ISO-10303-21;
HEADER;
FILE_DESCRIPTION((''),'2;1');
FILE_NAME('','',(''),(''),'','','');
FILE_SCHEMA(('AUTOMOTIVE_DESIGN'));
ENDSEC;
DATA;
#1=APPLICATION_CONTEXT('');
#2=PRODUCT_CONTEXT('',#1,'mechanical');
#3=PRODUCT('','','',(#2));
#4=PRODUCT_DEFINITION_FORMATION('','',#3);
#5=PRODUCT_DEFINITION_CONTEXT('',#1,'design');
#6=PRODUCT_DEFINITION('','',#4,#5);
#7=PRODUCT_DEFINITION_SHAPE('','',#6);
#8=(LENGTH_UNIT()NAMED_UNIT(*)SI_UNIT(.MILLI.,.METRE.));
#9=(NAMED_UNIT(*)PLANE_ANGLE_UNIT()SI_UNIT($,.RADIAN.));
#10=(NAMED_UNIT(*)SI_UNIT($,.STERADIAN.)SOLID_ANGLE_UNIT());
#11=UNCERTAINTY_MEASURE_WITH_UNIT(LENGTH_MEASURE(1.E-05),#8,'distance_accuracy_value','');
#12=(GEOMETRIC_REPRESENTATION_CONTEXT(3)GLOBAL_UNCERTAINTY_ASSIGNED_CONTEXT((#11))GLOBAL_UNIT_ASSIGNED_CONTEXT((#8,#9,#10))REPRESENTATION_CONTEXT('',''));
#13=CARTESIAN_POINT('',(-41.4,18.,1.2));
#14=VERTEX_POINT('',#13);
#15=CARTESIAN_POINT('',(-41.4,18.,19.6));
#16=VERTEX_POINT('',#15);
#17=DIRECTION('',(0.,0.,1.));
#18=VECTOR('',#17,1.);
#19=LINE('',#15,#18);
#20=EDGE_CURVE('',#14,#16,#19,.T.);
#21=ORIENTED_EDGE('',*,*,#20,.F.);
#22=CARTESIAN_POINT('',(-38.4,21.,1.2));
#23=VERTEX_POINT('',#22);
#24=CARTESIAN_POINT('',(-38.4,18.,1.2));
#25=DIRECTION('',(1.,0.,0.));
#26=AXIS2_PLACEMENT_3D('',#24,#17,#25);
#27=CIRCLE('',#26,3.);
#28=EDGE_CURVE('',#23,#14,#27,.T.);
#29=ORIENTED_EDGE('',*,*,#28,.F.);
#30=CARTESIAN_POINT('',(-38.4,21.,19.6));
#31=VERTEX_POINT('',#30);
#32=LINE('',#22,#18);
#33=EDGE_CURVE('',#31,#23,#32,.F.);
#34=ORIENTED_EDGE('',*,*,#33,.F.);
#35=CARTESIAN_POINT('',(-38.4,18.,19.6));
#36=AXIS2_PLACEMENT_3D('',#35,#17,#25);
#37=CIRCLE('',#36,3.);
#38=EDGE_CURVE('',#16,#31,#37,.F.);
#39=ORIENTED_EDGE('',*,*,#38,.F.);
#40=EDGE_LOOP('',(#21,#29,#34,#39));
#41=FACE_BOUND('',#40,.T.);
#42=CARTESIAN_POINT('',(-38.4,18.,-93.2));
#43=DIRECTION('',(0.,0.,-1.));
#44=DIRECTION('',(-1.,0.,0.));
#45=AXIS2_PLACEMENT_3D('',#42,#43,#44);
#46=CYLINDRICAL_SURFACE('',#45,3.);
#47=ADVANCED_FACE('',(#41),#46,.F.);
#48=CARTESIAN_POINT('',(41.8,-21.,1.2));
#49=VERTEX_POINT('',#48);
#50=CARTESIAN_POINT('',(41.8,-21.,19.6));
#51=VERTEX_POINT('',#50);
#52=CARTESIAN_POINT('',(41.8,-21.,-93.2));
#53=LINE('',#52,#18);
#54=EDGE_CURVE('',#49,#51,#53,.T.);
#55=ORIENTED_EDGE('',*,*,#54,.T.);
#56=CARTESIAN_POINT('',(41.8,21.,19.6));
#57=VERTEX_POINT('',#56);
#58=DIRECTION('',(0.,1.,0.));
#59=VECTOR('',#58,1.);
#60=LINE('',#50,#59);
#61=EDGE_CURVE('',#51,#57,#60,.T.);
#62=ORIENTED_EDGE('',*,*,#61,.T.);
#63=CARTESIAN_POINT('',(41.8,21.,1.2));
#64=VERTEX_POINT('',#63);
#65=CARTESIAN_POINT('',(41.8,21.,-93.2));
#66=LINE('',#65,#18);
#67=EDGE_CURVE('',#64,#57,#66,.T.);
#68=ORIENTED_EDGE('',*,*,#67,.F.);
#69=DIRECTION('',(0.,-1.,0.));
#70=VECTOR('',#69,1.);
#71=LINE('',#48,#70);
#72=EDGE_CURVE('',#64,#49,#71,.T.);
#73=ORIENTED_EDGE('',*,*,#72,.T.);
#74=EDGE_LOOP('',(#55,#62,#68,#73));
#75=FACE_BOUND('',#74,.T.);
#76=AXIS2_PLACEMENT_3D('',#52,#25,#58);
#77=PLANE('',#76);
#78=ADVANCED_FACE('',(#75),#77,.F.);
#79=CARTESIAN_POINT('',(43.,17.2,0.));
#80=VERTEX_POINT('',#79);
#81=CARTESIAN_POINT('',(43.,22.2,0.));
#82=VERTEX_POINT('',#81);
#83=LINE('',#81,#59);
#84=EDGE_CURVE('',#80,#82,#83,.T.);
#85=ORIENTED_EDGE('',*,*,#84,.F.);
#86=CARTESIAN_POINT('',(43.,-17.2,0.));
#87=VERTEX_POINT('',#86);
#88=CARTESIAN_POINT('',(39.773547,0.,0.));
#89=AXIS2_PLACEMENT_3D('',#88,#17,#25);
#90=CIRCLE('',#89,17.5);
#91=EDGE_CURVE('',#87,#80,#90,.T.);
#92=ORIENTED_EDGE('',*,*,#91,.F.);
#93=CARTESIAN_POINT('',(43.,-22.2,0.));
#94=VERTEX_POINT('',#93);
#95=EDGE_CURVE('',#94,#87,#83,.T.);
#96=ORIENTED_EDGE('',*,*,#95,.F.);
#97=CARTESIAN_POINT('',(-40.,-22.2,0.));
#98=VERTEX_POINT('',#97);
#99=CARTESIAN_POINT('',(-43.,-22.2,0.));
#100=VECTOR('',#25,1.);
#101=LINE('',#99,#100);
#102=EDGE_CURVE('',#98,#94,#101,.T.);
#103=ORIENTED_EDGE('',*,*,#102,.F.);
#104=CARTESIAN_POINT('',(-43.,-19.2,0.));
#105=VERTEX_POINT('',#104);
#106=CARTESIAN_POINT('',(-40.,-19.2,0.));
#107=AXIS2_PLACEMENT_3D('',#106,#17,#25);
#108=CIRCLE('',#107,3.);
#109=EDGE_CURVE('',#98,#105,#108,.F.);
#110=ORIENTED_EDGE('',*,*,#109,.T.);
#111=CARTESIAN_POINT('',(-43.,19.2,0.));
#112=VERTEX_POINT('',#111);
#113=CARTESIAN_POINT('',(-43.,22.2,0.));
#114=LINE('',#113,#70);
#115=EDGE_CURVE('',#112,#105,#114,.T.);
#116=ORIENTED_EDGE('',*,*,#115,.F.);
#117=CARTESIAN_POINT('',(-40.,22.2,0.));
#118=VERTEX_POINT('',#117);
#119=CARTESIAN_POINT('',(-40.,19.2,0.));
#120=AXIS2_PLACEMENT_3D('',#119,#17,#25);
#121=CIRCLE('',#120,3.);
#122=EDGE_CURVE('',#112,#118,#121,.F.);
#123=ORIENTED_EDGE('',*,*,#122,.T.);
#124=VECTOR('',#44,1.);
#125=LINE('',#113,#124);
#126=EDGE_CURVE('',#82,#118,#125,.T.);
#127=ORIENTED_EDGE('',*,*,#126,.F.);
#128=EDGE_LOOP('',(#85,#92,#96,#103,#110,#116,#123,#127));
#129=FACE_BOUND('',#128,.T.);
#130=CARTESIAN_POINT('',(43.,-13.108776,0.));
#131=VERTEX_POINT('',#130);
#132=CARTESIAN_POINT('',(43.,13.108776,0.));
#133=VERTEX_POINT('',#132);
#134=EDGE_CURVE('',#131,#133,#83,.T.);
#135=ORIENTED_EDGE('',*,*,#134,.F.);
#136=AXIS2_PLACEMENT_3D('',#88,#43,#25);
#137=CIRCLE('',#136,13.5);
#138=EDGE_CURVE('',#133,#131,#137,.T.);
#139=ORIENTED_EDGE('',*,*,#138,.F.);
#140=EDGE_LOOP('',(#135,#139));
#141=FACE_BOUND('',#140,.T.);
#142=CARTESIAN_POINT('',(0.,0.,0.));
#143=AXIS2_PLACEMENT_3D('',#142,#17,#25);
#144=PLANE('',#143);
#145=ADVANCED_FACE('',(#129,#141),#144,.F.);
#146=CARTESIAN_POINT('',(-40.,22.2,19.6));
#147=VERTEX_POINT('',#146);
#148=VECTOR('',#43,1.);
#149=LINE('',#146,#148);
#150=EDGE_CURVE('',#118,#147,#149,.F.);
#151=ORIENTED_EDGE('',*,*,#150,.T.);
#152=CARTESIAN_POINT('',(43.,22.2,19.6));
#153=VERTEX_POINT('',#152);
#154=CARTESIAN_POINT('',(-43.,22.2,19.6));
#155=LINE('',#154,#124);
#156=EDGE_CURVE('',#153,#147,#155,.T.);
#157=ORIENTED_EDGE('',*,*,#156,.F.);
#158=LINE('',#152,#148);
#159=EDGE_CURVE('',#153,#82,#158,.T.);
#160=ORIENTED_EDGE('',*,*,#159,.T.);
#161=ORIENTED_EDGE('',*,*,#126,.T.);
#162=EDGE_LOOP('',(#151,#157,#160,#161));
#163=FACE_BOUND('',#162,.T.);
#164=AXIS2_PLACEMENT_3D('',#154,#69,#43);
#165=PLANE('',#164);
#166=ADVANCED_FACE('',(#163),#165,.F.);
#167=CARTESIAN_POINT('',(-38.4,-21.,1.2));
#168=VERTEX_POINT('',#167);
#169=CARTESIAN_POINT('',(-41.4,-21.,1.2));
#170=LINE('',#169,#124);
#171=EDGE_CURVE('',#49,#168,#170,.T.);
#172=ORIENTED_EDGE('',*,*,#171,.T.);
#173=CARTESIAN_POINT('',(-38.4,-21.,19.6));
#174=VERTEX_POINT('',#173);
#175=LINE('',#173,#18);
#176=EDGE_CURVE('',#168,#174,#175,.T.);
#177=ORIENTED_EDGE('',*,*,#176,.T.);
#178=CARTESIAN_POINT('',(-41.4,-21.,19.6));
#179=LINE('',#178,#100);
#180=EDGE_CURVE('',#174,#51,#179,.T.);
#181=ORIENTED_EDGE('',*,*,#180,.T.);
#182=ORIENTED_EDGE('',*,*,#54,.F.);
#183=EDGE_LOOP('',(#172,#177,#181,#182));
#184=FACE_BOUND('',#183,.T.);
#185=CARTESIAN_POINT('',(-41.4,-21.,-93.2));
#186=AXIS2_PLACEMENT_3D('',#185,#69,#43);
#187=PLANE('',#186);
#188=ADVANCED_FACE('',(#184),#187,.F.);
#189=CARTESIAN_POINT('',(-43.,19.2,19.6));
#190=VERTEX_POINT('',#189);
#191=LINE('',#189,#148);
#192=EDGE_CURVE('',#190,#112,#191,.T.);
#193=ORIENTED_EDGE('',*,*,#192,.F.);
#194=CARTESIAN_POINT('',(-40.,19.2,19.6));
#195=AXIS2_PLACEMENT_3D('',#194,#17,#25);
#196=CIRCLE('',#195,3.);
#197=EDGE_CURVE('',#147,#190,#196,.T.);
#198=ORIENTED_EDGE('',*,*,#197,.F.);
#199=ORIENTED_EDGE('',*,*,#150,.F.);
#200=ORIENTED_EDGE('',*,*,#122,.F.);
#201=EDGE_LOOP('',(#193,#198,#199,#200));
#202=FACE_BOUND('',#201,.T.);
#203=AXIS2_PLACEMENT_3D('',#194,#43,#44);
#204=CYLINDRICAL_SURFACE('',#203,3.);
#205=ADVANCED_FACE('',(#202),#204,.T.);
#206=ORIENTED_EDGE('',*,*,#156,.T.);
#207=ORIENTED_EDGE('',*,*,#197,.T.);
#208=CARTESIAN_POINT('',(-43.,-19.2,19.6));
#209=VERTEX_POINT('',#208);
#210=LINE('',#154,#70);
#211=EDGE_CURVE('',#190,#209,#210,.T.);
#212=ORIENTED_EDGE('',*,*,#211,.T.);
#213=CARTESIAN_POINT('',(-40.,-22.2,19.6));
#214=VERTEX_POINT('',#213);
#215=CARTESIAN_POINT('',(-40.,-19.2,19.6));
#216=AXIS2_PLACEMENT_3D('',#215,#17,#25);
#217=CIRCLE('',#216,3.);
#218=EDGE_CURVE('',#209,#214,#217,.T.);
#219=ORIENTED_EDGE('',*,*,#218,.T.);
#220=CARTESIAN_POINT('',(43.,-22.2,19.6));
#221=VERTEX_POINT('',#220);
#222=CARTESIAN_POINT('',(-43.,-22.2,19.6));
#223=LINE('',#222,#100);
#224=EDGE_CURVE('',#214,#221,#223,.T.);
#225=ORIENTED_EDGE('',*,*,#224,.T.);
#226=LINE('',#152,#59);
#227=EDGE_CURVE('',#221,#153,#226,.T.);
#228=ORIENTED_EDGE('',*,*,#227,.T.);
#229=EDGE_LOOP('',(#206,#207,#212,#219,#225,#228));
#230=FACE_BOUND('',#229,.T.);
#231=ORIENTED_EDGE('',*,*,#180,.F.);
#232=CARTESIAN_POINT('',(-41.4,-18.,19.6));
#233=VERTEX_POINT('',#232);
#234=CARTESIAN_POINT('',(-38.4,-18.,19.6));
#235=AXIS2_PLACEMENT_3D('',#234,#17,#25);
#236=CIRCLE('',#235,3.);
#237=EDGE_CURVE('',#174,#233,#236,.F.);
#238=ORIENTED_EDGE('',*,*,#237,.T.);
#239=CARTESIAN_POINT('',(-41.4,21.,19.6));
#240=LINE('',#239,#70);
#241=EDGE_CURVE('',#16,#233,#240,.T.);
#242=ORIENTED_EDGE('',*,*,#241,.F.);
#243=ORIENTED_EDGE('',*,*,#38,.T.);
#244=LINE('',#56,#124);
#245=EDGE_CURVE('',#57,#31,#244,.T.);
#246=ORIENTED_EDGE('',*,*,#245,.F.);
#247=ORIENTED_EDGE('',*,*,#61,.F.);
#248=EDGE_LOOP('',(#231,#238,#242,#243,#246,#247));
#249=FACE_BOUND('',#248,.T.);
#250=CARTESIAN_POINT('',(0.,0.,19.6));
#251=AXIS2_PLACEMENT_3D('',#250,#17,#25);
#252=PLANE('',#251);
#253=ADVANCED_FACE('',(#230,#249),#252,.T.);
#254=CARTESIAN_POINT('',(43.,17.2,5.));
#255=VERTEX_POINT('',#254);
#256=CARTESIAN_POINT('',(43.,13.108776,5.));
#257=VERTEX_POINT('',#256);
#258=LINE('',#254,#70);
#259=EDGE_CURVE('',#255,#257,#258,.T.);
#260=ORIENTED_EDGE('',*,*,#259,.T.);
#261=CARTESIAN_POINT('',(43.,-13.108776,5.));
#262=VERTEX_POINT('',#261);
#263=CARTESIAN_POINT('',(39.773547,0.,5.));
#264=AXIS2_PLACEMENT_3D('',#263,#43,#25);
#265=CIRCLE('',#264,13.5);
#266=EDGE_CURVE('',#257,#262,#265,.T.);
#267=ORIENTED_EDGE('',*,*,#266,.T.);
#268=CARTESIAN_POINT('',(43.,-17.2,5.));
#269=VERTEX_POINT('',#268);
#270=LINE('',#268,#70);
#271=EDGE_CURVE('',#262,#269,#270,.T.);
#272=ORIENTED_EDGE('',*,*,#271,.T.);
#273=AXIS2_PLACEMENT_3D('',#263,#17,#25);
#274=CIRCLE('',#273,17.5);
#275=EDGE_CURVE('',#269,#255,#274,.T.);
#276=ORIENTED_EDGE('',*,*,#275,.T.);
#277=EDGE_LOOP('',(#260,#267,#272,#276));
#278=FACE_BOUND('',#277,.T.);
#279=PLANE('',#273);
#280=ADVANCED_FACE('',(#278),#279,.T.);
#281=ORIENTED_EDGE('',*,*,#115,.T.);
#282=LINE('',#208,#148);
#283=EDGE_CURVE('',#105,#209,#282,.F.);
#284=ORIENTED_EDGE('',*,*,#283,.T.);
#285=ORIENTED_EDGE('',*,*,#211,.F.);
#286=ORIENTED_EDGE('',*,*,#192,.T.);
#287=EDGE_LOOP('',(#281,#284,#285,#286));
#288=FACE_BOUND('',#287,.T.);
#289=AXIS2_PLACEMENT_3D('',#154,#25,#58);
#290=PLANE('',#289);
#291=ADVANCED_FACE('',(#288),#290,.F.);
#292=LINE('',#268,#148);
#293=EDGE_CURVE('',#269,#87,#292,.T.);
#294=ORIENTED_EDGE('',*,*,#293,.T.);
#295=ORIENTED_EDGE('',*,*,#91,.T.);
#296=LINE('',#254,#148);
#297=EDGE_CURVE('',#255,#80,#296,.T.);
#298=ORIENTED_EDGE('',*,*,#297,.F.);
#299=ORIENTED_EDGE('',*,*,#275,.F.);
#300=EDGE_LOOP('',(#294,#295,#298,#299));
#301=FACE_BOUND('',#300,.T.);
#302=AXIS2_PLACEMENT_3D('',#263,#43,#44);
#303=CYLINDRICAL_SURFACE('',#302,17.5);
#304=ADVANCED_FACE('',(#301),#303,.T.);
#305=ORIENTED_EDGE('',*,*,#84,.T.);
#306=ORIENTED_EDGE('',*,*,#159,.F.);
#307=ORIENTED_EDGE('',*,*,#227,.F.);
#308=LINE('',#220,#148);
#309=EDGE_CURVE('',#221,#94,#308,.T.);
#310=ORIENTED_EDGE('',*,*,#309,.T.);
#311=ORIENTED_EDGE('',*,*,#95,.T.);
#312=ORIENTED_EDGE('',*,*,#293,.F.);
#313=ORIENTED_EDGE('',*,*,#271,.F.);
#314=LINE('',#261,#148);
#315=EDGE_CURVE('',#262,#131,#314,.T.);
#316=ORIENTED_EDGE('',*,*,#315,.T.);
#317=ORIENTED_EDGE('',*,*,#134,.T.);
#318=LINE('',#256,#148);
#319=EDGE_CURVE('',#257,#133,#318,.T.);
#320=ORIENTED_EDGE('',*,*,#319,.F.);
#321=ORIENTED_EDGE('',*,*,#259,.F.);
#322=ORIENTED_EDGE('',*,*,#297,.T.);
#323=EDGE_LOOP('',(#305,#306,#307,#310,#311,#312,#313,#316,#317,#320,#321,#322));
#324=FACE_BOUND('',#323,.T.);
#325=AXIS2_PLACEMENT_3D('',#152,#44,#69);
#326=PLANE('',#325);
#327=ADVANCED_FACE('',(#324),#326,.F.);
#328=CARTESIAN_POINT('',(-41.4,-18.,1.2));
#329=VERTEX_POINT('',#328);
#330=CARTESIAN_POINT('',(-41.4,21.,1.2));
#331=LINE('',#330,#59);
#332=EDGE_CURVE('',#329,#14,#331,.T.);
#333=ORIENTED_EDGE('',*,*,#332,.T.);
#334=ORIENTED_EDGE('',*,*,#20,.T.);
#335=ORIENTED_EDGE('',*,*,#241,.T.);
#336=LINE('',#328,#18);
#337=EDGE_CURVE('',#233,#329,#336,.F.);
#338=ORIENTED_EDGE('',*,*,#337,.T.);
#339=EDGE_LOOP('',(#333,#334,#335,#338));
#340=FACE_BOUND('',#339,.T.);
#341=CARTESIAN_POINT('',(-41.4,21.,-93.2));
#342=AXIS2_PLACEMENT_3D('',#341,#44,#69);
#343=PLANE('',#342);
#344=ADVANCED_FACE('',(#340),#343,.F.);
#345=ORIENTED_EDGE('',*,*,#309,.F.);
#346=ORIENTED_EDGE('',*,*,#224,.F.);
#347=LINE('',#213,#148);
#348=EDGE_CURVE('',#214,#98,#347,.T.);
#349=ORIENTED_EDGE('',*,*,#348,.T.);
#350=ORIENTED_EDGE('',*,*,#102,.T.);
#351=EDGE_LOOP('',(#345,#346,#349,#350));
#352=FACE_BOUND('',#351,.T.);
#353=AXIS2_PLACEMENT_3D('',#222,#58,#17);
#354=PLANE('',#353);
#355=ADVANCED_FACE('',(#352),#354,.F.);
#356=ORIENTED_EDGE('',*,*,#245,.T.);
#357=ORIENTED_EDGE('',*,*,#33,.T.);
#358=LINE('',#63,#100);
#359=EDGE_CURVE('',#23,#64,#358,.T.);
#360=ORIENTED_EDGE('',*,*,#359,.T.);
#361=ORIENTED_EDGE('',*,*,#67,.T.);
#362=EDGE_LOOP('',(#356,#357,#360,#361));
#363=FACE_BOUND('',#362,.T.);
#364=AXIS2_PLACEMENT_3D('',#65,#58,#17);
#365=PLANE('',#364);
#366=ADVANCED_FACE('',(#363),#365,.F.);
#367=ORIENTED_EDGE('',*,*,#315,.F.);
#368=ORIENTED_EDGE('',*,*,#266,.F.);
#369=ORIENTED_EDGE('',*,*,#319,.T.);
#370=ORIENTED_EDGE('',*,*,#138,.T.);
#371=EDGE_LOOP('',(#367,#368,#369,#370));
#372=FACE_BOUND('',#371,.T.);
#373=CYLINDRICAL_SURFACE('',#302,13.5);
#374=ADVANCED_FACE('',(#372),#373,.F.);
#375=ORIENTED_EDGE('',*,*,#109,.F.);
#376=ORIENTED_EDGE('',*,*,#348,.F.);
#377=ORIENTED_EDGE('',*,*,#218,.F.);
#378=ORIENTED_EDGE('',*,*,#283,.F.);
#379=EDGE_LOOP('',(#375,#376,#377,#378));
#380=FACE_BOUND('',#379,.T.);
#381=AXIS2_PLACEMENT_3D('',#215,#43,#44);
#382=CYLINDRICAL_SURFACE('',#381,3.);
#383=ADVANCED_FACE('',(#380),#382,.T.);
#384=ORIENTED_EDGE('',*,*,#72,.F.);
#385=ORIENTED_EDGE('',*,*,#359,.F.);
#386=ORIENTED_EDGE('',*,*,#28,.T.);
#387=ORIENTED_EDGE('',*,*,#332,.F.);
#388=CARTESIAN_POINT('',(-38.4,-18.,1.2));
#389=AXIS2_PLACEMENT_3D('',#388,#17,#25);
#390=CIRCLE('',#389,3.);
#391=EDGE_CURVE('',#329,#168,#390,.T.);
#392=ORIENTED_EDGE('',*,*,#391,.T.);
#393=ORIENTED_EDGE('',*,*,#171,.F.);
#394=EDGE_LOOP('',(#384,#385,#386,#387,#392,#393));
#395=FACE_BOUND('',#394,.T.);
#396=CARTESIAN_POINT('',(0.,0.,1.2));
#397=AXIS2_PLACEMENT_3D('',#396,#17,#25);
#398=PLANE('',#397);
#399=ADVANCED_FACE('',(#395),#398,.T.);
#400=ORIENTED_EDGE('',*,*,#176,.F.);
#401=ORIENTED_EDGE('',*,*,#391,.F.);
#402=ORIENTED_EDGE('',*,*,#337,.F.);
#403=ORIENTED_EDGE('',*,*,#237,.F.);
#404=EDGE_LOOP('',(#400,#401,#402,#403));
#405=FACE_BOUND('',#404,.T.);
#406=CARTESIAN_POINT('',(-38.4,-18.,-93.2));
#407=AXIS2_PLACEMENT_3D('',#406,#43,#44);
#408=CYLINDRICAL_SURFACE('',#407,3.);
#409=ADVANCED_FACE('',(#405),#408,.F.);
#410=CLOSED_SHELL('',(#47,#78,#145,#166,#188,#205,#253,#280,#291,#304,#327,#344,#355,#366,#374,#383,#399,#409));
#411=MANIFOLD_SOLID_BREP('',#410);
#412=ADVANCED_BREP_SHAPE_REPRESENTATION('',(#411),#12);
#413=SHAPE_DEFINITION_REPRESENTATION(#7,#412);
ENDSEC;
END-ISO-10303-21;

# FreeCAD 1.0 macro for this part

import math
import FreeCAD as App
import Part
import Sketcher
from FreeCAD import Vector


def edges_at(feature, points):
    """Names of the edges that pass closest to the given points."""
    edges = feature.Shape.Edges
    near = lambda p: min(range(len(edges)), key=lambda i: edges[i].distToShape(Part.Vertex(*p))[0])
    return sorted({f"Edge{near(p) + 1}" for p in points})

doc = App.newDocument("Part")
body = doc.addObject("PartDesign::Body", "Body")

sketch1 = body.newObject("Sketcher::SketchObject", "Sketch")
sketch1.AttachmentSupport = (doc.getObject("XY_Plane"), [""])
sketch1.MapMode = "FlatFace"
sketch1.addGeometry([
    Part.LineSegment(Vector(-43, 22, 0), Vector(-43, -22, 0)),
    Part.LineSegment(Vector(-43, -22, 0), Vector(43, -22, 0)),
    Part.LineSegment(Vector(43, -22, 0), Vector(43, 22, 0)),
    Part.LineSegment(Vector(43, 22, 0), Vector(-43, 22, 0)),
], False)
sketch1.addConstraint([
    Sketcher.Constraint("Coincident", 0, 2, 1, 1),
    Sketcher.Constraint("Coincident", 1, 2, 2, 1),
    Sketcher.Constraint("Coincident", 2, 2, 3, 1),
    Sketcher.Constraint("Coincident", 3, 2, 0, 1),
    Sketcher.Constraint("Vertical", 0),
    Sketcher.Constraint("Horizontal", 1),
    Sketcher.Constraint("Vertical", 2),
    Sketcher.Constraint("Horizontal", 3),
    Sketcher.Constraint("Symmetric", 0, 2, 2, 2, -1, 1),
    Sketcher.Constraint("DistanceX", 1, 1, 1, 2, 86.0),
    Sketcher.Constraint("DistanceY", 0, 2, 0, 1, 44.4),
])
pad1 = body.newObject("PartDesign::Pad", "Pad")
pad1.Profile = sketch1
pad1.Length = 19.6

sketch2 = body.newObject("Sketcher::SketchObject", "Sketch001")
sketch2.AttachmentSupport = (doc.getObject("XY_Plane"), [""])
sketch2.MapMode = "FlatFace"
sketch2.addGeometry([
    Part.LineSegment(Vector(43, 17.2, 0), Vector(43, 13.1, 0)),
    Part.ArcOfCircle(Part.Circle(Vector(39.8, 0, 0), Vector(0, 0, 1), 13.5), math.radians(-76), math.radians(76)),
    Part.LineSegment(Vector(43, -13.1, 0), Vector(43, -17.2, 0)),
    Part.ArcOfCircle(Part.Circle(Vector(39.8, 0, 0), Vector(0, 0, 1), 17.5), math.radians(-79), math.radians(79)),
], False)
sketch2.addConstraint([
    Sketcher.Constraint("Coincident", 0, 2, 1, 2),
    Sketcher.Constraint("Coincident", 1, 1, 2, 1),
    Sketcher.Constraint("Coincident", 2, 2, 3, 1),
    Sketcher.Constraint("Coincident", 3, 2, 0, 1),
    Sketcher.Constraint("Vertical", 0),
    Sketcher.Constraint("Vertical", 2),
    Sketcher.Constraint("Coincident", 3, 3, 1, 3),
    Sketcher.Constraint("Symmetric", 0, 2, 1, 1, -1),
    Sketcher.Constraint("Radius", 1, 13.5),
    Sketcher.Constraint("Radius", 3, 17.5),
    Sketcher.Constraint("DistanceX", -1, 1, 0, 2, 43.0),
    Sketcher.Constraint("DistanceY", 2, 2, -1, 1, 17.2),
])
pad2 = body.newObject("PartDesign::Pad", "Pad001")
pad2.Profile = sketch2
pad2.Length = 5

sketch3 = body.newObject("Sketcher::SketchObject", "Sketch002")
sketch3.AttachmentSupport = (doc.getObject("XY_Plane"), [""])
sketch3.MapMode = "FlatFace"
sketch3.AttachmentOffset = App.Placement(Vector(0, 0, 19.6), App.Rotation())
sketch3.addGeometry([
    Part.LineSegment(Vector(-41, 21, 0), Vector(-41, -21, 0)),
    Part.LineSegment(Vector(-41, -21, 0), Vector(42, -21, 0)),
    Part.LineSegment(Vector(42, -21, 0), Vector(42, 21, 0)),
    Part.LineSegment(Vector(42, 21, 0), Vector(-41, 21, 0)),
], False)
sketch3.addConstraint([
    Sketcher.Constraint("Coincident", 0, 2, 1, 1),
    Sketcher.Constraint("Coincident", 1, 2, 2, 1),
    Sketcher.Constraint("Coincident", 2, 2, 3, 1),
    Sketcher.Constraint("Coincident", 3, 2, 0, 1),
    Sketcher.Constraint("Vertical", 0),
    Sketcher.Constraint("Horizontal", 1),
    Sketcher.Constraint("Vertical", 2),
    Sketcher.Constraint("Horizontal", 3),
    Sketcher.Constraint("DistanceY", 0, 2, 0, 1, 42.0),
    Sketcher.Constraint("DistanceX", 1, 1, 1, 2, 83.2),
    Sketcher.Constraint("DistanceY", 0, 2, -1, 1, 21.0),
    Sketcher.Constraint("DistanceX", 0, 2, -1, 1, 41.4),
])
pocket1 = body.newObject("PartDesign::Pocket", "Pocket")
pocket1.Profile = sketch3
pocket1.Length = 18.4
doc.recompute()

fillet = body.newObject("PartDesign::Fillet", "Fillet")
fillet.Base = (pocket1, edges_at(pocket1, [
    (-41.4, -21, 10.4),
    (-41.4, 21, 10.4),
    (-43, -22.2, 9.8),
    (-43, 22.2, 9.8),
]))
fillet.Radius = 3

doc.recompute()
